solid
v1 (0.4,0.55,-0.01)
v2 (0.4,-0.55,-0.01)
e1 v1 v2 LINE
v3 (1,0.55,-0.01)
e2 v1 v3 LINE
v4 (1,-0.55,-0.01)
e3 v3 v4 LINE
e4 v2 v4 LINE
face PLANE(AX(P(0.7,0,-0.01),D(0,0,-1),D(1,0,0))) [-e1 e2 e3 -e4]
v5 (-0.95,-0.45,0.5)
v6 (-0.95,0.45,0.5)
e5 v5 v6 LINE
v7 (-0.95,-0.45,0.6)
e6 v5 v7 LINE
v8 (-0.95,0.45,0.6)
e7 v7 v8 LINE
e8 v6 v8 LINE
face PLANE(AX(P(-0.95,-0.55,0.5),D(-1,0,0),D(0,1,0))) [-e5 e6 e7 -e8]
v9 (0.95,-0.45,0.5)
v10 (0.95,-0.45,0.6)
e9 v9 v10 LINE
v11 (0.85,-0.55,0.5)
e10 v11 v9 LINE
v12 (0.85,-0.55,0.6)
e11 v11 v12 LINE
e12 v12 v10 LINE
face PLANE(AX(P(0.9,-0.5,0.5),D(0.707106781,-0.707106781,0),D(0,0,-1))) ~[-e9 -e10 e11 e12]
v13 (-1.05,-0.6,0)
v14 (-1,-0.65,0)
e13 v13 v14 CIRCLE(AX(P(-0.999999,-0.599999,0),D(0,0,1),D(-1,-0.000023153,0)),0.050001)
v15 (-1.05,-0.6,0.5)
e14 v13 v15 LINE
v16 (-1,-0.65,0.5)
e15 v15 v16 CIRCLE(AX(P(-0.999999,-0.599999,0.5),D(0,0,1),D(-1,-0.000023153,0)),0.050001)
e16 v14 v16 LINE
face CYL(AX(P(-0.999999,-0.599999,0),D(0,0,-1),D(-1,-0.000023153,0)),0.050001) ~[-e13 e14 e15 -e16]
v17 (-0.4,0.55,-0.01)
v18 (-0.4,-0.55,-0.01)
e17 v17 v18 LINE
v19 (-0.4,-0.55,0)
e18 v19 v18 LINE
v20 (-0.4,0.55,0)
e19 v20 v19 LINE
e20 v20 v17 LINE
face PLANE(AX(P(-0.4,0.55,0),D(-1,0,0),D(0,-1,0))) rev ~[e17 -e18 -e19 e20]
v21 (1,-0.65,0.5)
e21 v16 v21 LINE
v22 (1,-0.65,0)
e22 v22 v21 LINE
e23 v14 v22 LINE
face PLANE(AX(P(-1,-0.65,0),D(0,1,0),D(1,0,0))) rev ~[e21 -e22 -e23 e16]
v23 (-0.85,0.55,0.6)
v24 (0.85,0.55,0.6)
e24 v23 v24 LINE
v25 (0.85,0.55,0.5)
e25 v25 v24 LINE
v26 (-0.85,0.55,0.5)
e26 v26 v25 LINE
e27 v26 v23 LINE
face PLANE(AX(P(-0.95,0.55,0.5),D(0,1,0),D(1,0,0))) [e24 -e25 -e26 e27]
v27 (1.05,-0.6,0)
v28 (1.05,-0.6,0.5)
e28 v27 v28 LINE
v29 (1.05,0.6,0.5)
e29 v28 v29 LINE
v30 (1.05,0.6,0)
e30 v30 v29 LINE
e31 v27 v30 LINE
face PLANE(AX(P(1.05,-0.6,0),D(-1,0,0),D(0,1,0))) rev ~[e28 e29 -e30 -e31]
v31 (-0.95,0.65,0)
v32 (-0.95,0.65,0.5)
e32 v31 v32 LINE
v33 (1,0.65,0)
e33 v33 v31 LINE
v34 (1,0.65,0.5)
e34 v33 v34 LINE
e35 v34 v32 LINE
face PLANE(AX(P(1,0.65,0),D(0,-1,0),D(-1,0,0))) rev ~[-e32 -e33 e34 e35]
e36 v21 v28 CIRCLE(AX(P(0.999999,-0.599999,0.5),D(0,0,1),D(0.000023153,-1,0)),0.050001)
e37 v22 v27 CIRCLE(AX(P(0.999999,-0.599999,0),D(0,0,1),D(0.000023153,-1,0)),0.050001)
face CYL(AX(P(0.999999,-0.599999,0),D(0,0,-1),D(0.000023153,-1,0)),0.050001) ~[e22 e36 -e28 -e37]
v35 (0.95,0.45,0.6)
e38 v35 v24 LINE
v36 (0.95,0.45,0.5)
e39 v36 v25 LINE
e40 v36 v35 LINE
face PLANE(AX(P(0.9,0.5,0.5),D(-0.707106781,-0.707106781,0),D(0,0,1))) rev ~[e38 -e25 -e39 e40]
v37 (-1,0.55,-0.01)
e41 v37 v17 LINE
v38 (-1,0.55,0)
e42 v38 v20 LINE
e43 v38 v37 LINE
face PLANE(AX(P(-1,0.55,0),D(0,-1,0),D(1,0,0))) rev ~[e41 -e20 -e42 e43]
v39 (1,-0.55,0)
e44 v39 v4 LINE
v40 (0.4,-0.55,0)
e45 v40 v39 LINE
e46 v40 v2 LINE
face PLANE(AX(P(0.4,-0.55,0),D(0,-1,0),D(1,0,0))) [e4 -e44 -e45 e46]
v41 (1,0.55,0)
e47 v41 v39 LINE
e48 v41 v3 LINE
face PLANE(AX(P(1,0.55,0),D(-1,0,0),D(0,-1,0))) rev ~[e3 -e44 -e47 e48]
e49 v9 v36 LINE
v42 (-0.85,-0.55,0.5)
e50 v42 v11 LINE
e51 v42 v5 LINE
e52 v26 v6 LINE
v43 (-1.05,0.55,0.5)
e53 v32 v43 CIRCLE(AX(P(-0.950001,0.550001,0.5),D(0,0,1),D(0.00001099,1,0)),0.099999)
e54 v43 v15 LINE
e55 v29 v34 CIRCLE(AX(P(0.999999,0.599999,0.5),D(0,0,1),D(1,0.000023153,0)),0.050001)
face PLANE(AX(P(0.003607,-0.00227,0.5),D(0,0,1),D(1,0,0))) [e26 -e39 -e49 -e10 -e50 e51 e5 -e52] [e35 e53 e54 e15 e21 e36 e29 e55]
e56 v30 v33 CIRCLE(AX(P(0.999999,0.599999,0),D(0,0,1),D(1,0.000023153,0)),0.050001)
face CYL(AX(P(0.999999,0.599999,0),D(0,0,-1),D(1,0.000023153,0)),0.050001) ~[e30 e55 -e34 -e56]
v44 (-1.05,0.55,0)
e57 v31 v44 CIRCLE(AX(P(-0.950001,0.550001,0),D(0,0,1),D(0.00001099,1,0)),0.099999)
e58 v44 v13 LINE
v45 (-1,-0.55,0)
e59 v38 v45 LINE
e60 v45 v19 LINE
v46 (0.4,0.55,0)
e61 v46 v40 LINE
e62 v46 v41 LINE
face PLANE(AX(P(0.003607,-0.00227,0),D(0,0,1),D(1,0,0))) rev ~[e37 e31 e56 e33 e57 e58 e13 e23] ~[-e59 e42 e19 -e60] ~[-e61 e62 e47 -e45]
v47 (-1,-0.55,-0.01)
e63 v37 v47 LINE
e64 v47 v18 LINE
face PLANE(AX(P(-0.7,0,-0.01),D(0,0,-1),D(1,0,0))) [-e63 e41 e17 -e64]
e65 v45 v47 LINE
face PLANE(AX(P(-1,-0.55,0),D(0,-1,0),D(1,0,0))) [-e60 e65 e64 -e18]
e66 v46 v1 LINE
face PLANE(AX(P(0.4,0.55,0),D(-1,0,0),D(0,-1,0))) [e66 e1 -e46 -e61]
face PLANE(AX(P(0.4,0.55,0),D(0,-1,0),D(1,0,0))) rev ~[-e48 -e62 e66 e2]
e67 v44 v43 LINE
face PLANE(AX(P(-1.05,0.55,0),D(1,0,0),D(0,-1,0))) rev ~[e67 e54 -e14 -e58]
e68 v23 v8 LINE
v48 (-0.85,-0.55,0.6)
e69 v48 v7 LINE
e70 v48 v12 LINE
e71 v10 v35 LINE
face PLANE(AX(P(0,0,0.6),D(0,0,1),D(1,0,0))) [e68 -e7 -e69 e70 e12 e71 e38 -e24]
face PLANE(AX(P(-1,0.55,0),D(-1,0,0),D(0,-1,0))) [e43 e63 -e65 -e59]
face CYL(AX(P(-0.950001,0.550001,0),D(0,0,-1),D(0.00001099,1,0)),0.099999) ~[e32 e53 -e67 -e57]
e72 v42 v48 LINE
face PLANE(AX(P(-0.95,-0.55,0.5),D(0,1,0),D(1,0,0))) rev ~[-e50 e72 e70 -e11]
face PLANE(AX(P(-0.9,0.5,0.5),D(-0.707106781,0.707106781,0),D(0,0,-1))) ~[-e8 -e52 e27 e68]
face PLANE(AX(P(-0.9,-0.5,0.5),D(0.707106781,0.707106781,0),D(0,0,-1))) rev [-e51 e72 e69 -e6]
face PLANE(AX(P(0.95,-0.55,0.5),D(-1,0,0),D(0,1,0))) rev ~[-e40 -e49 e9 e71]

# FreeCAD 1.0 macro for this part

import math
import FreeCAD as App
import Part
import Sketcher
Q = App.Units.Quantity


def edges_at(feature, points):
    """Names of the edges that pass closest to the given points."""
    edges = feature.Shape.Edges
    near = lambda p: min(range(len(edges)), key=lambda i: edges[i].distToShape(Part.Vertex(*p))[0])
    return sorted({f"Edge{near(p) + 1}" for p in points})


def add_polygon(sketch, points):
    """Adds a closed chain of lines whose ends are joined by coincident constraints."""
    first, n = sketch.GeometryCount, len(points)
    for a, b in zip(points, points[1:] + points[:1]):
        sketch.addGeometry(Part.LineSegment(App.Vector(*a, 0), App.Vector(*b, 0)), False)
    for i in range(n):
        sketch.addConstraint(Sketcher.Constraint("Coincident", first + i, 2, first + (i + 1) % n, 1))

doc = App.newDocument("Part")
params = doc.addObject("Spreadsheet::Sheet", "Params")
for row, (alias, value) in enumerate([
    ("sketch1_radius", "0.099999 mm"),
    ("sketch1_width", "2 mm"),
    ("sketch1_radius2", "0.050001 mm"),
    ("sketch1_height", "1.2 mm"),
    ("sketch1_height2", "1.15 mm"),
    ("pad1_length", "0.5 mm"),
    ("sketch2_width", "1.9 mm"),
    ("sketch2_height", "1.1 mm"),
    ("pad2_length", "0.1 mm"),
    ("sketch3_width", "0.6 mm"),
    ("sketch3_height", "1.1 mm"),
    ("pad3_length", "0.01 mm"),
    ("chamfer_size", "0.1 mm"),
], start=1):
    params.set(f"A{row}", alias)
    params.set(f"B{row}", "=" + value)
    params.setAlias(f"B{row}", alias)

body = doc.addObject("PartDesign::Body", "Body")

sketch1 = body.newObject("Sketcher::SketchObject", "Sketch")
sketch1.AttachmentSupport = (doc.getObject("XY_Plane"), [""])
sketch1.MapMode = "FlatFace"
sketch1.addGeometry([
    Part.LineSegment(App.Vector(1, 0.65, 0), App.Vector(-0.95, 0.65, 0)),
    Part.ArcOfCircle(Part.Circle(App.Vector(-0.95, 0.55, 0), App.Vector(0, 0, 1), 0.1), math.radians(90), math.radians(180)),
    Part.LineSegment(App.Vector(-1.05, 0.55, 0), App.Vector(-1.05, -0.6, 0)),
    Part.ArcOfCircle(Part.Circle(App.Vector(-1, -0.6, 0), App.Vector(0, 0, 1), 0.05), math.radians(-180), math.radians(-90)),
    Part.LineSegment(App.Vector(-1, -0.65, 0), App.Vector(1, -0.65, 0)),
    Part.ArcOfCircle(Part.Circle(App.Vector(1, -0.6, 0), App.Vector(0, 0, 1), 0.05), math.radians(-90), math.radians(0)),
    Part.LineSegment(App.Vector(1.05, -0.6, 0), App.Vector(1.05, 0.6, 0)),
    Part.ArcOfCircle(Part.Circle(App.Vector(1, 0.6, 0), App.Vector(0, 0, 1), 0.05), math.radians(0), math.radians(90)),
], False)
sketch1.addConstraint([
    Sketcher.Constraint("Coincident", 0, 2, 1, 1),
    Sketcher.Constraint("Coincident", 1, 2, 2, 1),
    Sketcher.Constraint("Coincident", 2, 2, 3, 1),
    Sketcher.Constraint("Coincident", 3, 2, 4, 1),
    Sketcher.Constraint("Coincident", 4, 2, 5, 1),
    Sketcher.Constraint("Coincident", 5, 2, 6, 1),
    Sketcher.Constraint("Coincident", 6, 2, 7, 1),
    Sketcher.Constraint("Coincident", 7, 2, 0, 1),
    Sketcher.Constraint("Horizontal", 0),
    Sketcher.Constraint("Vertical", 2),
    Sketcher.Constraint("Horizontal", 4),
    Sketcher.Constraint("Vertical", 6),
    Sketcher.Constraint("Equal", 3, 5),
    Sketcher.Constraint("Equal", 5, 7),
    Sketcher.Constraint("Symmetric", 3, 3, 7, 3, -1, 1),
    Sketcher.Constraint("Horizontal", 5, 3, 2, 2),
    Sketcher.Constraint("Horizontal", 2, 2, 5, 2),
    Sketcher.Constraint("Horizontal", 7, 3, 6, 2),
    Sketcher.Constraint("Vertical", 1, 3, 0, 2),
    Sketcher.Constraint("Vertical", 7, 3, 4, 2),
    Sketcher.Constraint("Vertical", 4, 2, 7, 2),
    Sketcher.Constraint("Radius", 1, Q("0.099999 mm")),
    Sketcher.Constraint("DistanceX", 4, 1, 4, 2, Q("2 mm")),
    Sketcher.Constraint("Radius", 3, Q("0.050001 mm")),
    Sketcher.Constraint("DistanceY", 6, 1, 6, 2, Q("1.2 mm")),
    Sketcher.Constraint("DistanceX", 3, 3, -1, 1, Q("0.999999 mm")),
    Sketcher.Constraint("DistanceY", 2, 2, 2, 1, Q("1.15 mm")),
])
sketch1.setExpression("Constraints[21]", "Params.sketch1_radius")
sketch1.setExpression("Constraints[22]", "Params.sketch1_width")
sketch1.setExpression("Constraints[23]", "Params.sketch1_radius2")
sketch1.setExpression("Constraints[24]", "Params.sketch1_height")
sketch1.setExpression("Constraints[26]", "Params.sketch1_height2")
pad1 = body.newObject("PartDesign::Pad", "Pad")
pad1.Profile = sketch1
pad1.setExpression("Length", "Params.pad1_length")

sketch2 = body.newObject("Sketcher::SketchObject", "Sketch001")
sketch2.AttachmentSupport = (doc.getObject("XY_Plane"), [""])
sketch2.MapMode = "FlatFace"
sketch2.AttachmentOffset = App.Placement(App.Vector(0, 0, 0.5), App.Rotation())
add_polygon(sketch2, [(-0.9, 0.6), (-0.9, -0.6), (0.9, -0.6), (0.9, 0.6)])
sketch2.addConstraint([
    Sketcher.Constraint("Vertical", 0),
    Sketcher.Constraint("Horizontal", 1),
    Sketcher.Constraint("Vertical", 2),
    Sketcher.Constraint("Horizontal", 3),
    Sketcher.Constraint("Symmetric", 0, 2, 2, 2, -1, 1),
    Sketcher.Constraint("DistanceX", 1, 1, 1, 2, Q("1.9 mm")),
    Sketcher.Constraint("DistanceY", 0, 2, 0, 1, Q("1.1 mm")),
])
sketch2.setExpression("Constraints[9]", "Params.sketch2_width")
sketch2.setExpression("Constraints[10]", "Params.sketch2_height")
pad2 = body.newObject("PartDesign::Pad", "Pad001")
pad2.Profile = sketch2
pad2.setExpression("Length", "Params.pad2_length")

sketch3 = body.newObject("Sketcher::SketchObject", "Sketch002")
sketch3.AttachmentSupport = (doc.getObject("XY_Plane"), [""])
sketch3.MapMode = "FlatFace"
add_polygon(sketch3, [(0.4, -0.6), (0.4, 0.6), (1, 0.6), (1, -0.6)])
add_polygon(sketch3, [(-1, -0.6), (-1, 0.6), (-0.4, 0.6), (-0.4, -0.6)])
sketch3.addConstraint([
    Sketcher.Constraint("Vertical", 0),
    Sketcher.Constraint("Horizontal", 1),
    Sketcher.Constraint("Vertical", 2),
    Sketcher.Constraint("Horizontal", 3),
    Sketcher.Constraint("Vertical", 4),
    Sketcher.Constraint("Horizontal", 5),
    Sketcher.Constraint("Vertical", 6),
    Sketcher.Constraint("Horizontal", 7),
    Sketcher.Constraint("Symmetric", 2, 2, 4, 2, -1, 1),
    Sketcher.Constraint("Symmetric", 0, 2, 6, 2, -1, 1),
    Sketcher.Constraint("Horizontal", 1, 2, 4, 2),
    Sketcher.Constraint("DistanceX", 1, 1, 1, 2, Q("0.6 mm")),
    Sketcher.Constraint("DistanceY", 0, 1, 0, 2, Q("1.1 mm")),
    Sketcher.Constraint("DistanceX", -1, 1, 1, 2, Q("1 mm")),
])
sketch3.setExpression("Constraints[19]", "Params.sketch3_width")
sketch3.setExpression("Constraints[20]", "Params.sketch3_height")
pad3 = body.newObject("PartDesign::Pad", "Pad002")
pad3.Profile = sketch3
pad3.setExpression("Length", "Params.pad3_length")
pad3.Reversed = True
doc.recompute()

chamfer = body.newObject("PartDesign::Chamfer", "Chamfer")
chamfer.Base = (pad3, edges_at(pad3, [
    (0.95, -0.55, 0.55),
    (0.95, 0.55, 0.55),
    (-0.95, 0.55, 0.55),
    (-0.95, -0.55, 0.55),
]))
chamfer.setExpression("Size", "Params.chamfer_size")

doc.recompute()
